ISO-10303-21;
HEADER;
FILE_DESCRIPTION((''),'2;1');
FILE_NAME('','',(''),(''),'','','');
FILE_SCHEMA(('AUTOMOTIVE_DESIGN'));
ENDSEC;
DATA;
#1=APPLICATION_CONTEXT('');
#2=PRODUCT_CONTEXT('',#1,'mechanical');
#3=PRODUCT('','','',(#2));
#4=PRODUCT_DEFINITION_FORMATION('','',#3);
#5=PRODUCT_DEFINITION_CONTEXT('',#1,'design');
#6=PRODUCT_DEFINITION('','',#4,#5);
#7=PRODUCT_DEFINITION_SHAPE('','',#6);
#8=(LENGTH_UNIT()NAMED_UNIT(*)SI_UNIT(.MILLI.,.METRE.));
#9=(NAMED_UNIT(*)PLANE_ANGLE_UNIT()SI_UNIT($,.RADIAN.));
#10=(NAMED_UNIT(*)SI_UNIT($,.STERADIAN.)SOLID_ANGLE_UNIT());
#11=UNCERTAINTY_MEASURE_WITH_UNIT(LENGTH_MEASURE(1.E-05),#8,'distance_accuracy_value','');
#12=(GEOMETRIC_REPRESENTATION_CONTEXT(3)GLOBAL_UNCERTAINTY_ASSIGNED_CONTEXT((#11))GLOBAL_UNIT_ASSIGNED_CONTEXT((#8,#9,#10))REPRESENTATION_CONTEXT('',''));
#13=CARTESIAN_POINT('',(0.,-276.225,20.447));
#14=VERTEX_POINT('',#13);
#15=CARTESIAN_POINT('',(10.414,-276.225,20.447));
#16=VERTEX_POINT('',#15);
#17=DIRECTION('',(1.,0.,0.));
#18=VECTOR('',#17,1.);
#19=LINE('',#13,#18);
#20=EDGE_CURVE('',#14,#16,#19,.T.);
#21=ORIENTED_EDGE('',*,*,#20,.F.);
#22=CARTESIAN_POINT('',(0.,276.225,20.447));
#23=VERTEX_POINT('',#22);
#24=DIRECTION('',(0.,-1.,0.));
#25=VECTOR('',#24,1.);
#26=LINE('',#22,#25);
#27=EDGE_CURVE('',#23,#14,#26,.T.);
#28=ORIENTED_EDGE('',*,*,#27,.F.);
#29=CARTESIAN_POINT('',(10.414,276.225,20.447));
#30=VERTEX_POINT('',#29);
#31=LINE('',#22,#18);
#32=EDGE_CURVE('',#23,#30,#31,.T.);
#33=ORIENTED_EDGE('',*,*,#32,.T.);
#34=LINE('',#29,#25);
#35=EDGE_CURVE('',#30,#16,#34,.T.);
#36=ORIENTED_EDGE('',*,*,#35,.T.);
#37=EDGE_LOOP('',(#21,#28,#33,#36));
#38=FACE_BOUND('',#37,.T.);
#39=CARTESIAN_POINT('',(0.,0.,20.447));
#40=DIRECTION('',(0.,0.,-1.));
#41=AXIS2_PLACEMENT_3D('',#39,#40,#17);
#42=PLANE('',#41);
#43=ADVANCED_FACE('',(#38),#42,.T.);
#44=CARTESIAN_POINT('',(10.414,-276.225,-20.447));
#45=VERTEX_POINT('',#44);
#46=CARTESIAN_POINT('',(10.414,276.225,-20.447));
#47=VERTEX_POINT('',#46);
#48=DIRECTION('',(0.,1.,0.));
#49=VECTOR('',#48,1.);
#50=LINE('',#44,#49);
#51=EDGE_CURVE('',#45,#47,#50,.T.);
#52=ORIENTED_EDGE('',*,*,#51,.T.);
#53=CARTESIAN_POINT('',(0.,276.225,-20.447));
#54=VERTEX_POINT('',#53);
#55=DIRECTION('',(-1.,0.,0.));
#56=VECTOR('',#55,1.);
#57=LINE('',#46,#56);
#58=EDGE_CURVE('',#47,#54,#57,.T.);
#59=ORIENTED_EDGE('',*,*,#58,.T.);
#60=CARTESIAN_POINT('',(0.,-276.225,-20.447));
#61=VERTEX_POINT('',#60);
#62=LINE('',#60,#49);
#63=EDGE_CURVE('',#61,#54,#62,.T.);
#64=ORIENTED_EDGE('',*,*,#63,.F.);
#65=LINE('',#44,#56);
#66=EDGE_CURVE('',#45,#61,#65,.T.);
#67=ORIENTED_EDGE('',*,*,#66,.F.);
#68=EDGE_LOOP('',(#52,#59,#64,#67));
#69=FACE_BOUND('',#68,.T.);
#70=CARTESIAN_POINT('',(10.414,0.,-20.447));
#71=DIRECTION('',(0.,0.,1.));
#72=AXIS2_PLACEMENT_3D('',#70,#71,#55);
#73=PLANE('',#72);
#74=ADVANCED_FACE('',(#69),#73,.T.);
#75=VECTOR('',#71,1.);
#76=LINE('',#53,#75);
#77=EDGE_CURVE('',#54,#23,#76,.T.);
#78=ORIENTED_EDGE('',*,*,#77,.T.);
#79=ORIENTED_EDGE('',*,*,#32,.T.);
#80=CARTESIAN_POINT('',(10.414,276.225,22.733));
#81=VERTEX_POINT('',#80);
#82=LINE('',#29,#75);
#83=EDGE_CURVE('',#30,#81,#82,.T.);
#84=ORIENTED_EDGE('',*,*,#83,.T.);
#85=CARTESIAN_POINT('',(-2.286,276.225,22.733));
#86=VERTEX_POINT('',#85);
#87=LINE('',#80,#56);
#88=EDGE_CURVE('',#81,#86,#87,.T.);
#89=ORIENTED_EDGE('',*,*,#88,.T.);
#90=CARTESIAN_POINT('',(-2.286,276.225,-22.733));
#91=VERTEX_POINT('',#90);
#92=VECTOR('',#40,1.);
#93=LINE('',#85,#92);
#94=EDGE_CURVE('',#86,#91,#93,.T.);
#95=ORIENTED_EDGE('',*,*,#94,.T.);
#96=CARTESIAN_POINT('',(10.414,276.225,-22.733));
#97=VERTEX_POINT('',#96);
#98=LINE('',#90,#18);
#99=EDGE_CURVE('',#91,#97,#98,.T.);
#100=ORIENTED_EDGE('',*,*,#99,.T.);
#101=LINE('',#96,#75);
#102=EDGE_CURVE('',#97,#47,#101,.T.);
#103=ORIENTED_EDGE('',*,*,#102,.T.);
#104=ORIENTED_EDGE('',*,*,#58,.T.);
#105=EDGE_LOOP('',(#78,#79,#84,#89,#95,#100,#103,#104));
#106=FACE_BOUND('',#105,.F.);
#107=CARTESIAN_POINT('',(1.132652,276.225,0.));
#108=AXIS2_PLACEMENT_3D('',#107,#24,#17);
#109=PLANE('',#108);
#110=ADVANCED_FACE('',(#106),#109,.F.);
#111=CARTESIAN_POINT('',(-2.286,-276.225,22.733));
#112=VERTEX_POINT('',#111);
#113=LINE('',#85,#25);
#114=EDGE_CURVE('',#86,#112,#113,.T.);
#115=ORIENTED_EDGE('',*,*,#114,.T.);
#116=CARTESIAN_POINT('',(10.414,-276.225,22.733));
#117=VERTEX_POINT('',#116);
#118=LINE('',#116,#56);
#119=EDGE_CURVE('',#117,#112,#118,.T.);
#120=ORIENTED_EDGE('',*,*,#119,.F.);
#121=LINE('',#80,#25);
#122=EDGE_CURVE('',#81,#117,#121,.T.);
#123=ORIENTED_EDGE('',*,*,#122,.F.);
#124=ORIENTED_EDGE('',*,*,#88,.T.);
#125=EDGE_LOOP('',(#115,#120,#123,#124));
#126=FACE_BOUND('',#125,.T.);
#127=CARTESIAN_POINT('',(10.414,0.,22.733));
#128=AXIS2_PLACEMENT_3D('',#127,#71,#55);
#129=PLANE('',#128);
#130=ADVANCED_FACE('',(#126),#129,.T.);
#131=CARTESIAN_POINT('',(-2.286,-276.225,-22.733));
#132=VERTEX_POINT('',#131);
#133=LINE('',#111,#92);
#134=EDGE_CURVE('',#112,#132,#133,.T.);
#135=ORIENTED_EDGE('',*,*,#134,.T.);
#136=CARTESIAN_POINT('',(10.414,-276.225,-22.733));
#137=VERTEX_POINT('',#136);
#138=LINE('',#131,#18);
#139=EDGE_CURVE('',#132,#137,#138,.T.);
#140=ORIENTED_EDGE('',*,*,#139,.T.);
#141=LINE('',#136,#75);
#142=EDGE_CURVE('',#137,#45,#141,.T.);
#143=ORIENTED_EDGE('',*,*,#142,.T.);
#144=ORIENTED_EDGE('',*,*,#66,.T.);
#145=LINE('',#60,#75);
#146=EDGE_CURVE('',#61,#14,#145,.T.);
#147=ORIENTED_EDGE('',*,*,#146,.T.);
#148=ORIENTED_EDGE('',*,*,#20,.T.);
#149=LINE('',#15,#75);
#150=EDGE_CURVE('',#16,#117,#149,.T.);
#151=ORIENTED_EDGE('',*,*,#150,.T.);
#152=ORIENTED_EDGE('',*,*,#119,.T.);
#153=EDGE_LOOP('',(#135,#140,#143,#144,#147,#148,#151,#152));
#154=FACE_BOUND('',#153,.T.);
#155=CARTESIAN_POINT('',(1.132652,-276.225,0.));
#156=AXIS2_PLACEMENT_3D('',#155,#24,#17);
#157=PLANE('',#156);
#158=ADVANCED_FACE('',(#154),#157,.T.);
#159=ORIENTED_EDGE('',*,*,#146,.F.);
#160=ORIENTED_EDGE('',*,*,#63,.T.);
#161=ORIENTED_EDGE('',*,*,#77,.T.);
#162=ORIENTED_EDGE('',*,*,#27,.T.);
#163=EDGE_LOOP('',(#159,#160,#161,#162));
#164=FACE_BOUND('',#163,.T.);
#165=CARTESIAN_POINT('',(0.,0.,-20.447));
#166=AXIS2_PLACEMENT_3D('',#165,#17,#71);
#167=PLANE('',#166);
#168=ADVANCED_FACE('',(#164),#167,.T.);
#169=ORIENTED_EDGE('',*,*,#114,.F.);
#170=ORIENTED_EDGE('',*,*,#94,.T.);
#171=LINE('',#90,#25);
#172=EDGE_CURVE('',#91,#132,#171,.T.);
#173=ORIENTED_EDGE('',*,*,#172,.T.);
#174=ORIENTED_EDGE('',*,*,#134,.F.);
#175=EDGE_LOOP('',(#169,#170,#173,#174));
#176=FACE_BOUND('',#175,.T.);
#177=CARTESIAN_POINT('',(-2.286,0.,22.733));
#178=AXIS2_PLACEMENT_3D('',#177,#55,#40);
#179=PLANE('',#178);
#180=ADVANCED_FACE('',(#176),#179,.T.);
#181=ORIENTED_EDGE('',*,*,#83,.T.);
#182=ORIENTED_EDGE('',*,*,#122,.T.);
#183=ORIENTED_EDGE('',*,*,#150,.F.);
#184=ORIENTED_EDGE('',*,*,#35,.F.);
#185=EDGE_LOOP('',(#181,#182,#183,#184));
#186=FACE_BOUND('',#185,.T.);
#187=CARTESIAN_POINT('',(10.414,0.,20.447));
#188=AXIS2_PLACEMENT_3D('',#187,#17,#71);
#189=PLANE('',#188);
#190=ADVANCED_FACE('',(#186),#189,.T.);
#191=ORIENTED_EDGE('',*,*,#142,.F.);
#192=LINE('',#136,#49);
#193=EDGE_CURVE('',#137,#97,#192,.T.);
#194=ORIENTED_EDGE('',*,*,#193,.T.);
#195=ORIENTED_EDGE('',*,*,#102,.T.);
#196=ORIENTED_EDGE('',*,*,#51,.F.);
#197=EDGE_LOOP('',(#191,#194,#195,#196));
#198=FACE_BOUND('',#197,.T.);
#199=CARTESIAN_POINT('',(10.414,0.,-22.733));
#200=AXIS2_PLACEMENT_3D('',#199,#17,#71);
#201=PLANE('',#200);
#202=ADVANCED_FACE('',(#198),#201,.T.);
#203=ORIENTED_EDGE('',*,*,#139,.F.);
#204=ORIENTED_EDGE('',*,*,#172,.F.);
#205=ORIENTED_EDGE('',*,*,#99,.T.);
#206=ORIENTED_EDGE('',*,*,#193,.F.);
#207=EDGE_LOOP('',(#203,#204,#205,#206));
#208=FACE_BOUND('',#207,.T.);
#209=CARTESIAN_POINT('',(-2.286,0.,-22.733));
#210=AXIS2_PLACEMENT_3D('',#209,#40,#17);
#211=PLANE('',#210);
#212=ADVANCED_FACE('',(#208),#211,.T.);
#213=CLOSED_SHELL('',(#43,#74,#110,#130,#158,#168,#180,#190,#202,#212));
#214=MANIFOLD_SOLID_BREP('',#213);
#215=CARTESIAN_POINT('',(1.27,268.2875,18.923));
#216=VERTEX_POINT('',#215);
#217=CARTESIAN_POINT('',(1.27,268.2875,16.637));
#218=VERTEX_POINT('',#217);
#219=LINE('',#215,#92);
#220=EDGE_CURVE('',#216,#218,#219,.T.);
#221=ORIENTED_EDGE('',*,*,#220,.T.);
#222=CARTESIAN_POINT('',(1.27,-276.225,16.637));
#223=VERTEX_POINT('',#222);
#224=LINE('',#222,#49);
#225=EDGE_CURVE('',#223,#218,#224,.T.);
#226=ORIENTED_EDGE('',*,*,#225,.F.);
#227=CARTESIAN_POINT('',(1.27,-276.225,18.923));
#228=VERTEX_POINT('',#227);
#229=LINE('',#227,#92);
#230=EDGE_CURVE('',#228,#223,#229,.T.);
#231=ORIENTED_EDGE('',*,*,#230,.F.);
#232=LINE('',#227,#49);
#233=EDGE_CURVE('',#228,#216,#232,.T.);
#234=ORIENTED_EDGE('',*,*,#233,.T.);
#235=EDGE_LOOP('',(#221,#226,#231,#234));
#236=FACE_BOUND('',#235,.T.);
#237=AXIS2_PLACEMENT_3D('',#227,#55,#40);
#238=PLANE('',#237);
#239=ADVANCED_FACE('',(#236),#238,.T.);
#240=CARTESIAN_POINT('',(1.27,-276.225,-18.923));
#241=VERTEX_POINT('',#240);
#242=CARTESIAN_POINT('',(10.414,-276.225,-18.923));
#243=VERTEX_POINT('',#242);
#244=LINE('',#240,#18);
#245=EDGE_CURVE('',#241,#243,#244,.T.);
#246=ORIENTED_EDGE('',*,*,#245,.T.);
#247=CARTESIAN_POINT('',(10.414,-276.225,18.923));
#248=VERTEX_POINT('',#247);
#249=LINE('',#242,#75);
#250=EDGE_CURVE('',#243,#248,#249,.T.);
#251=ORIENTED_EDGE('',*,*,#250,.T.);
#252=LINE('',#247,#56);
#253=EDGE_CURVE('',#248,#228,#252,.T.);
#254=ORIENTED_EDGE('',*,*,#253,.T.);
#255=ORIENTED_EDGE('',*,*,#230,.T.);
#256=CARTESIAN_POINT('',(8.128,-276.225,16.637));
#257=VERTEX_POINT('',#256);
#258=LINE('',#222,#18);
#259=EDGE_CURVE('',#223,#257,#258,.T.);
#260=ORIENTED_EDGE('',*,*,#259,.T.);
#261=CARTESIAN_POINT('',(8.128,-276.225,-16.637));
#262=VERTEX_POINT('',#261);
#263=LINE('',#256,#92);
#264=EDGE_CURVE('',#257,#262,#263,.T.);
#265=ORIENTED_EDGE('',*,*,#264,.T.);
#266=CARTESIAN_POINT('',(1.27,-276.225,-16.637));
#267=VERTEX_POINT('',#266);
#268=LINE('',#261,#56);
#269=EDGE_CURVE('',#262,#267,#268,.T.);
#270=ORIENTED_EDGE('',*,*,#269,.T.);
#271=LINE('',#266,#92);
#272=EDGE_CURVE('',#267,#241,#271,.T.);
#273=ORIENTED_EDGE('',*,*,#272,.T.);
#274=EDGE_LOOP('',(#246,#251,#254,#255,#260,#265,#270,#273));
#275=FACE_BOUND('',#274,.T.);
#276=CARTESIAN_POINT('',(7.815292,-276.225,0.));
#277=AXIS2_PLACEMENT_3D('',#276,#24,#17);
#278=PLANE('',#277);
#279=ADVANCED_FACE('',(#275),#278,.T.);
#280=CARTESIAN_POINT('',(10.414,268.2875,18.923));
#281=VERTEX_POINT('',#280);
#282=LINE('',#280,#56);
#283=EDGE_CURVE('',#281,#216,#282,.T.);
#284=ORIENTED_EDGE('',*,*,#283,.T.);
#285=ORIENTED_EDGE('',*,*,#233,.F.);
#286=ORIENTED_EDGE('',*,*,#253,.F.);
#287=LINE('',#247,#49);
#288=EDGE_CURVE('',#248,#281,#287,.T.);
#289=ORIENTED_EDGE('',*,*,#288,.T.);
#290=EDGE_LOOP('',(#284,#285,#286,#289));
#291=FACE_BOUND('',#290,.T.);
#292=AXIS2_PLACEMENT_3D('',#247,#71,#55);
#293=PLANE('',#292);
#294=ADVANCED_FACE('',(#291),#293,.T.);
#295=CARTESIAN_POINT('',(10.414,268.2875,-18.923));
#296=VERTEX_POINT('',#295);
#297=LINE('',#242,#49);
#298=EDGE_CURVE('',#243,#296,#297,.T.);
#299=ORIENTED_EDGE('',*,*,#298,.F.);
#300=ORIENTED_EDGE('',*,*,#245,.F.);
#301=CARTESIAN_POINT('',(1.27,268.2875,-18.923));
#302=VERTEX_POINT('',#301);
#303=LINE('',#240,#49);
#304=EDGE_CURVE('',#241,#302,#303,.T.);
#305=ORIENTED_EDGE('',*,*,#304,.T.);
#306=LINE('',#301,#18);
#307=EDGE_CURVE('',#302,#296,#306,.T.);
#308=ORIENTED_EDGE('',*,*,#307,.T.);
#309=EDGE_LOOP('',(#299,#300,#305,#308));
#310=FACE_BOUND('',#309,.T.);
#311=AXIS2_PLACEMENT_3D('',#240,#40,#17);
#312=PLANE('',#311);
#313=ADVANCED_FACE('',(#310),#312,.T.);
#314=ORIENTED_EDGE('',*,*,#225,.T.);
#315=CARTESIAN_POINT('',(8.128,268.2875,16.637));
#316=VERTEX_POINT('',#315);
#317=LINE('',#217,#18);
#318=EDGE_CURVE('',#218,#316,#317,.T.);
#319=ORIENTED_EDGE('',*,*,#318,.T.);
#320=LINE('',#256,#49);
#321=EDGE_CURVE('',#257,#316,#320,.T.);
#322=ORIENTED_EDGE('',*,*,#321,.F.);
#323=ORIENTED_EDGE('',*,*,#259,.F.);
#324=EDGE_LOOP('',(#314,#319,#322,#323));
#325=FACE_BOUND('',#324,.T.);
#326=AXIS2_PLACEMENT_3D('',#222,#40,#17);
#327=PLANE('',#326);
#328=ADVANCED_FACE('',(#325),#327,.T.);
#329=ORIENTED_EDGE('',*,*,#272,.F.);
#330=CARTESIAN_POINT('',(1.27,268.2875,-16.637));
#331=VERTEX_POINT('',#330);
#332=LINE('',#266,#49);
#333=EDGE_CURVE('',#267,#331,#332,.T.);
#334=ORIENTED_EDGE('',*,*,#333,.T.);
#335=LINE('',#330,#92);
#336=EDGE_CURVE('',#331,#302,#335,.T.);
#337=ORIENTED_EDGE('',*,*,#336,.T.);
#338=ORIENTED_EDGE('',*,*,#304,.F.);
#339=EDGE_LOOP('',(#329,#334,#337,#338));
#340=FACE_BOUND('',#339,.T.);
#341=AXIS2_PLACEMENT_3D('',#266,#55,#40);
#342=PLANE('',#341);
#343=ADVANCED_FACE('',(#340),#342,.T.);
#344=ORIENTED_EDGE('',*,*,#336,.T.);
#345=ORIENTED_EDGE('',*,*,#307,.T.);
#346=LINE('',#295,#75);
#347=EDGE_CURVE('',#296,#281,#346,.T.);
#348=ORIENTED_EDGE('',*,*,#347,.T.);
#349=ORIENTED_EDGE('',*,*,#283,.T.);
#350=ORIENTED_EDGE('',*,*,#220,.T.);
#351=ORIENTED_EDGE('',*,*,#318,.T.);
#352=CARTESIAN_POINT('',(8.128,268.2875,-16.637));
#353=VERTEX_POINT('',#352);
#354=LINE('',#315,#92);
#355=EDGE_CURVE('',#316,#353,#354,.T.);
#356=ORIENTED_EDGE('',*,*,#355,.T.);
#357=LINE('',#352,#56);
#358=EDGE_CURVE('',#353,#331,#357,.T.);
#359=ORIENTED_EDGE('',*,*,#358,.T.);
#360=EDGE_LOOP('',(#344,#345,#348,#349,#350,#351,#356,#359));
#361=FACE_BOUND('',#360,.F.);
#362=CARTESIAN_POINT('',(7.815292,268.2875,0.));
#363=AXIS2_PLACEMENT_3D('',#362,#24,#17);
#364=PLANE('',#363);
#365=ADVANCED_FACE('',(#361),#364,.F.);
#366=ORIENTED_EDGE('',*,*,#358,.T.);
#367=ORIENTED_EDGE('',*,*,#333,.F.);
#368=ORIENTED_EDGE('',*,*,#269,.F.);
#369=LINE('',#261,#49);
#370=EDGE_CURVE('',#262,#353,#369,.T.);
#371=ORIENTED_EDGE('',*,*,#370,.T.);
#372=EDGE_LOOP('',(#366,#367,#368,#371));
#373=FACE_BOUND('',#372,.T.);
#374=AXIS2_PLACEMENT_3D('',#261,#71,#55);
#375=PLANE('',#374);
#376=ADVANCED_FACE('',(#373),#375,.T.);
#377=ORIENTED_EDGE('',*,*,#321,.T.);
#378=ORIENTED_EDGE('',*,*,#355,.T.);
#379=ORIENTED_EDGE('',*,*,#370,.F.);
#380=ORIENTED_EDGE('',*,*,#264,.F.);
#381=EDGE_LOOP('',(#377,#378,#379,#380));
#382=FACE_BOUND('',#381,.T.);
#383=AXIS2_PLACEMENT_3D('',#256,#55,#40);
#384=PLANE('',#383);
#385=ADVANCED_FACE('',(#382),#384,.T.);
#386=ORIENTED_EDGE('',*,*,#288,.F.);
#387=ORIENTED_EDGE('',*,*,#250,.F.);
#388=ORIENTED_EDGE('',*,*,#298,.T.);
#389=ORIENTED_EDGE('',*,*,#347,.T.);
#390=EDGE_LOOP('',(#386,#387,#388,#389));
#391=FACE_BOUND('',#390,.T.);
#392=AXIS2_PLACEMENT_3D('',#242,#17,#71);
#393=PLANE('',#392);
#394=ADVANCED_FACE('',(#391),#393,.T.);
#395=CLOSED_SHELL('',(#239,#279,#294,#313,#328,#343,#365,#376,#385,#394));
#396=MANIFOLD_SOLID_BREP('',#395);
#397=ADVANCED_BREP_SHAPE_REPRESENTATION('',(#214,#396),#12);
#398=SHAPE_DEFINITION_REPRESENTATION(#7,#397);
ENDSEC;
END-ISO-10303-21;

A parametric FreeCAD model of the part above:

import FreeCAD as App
import Part
import Sketcher
Q = App.Units.Quantity


def add_polygon(sketch, points):
    """Adds a closed chain of lines whose ends are joined by coincident constraints."""
    first, n = sketch.GeometryCount, len(points)
    for a, b in zip(points, points[1:] + points[:1]):
        sketch.addGeometry(Part.LineSegment(App.Vector(*a, 0), App.Vector(*b, 0)), False)
    for i in range(n):
        sketch.addConstraint(Sketcher.Constraint("Coincident", first + i, 2, first + (i + 1) % n, 1))

doc = App.newDocument("Part")
params = doc.addObject("Spreadsheet::Sheet", "Params")
for row, (alias, value) in enumerate([
    ("sketch1_width", "0.5 in"),
    ("sketch1_width2", "0.41 in"),
    ("sketch1_height", "1.61 in"),
    ("sketch1_height2", "0.09 in"),
    ("pad1_length", "21.75 in"),
    ("sketch2_width", "0.36 in"),
    ("sketch2_width2", "0.27 in"),
    ("sketch2_height", "0.09 in"),
    ("sketch2_height2", "1.31 in"),
    ("pad2_length", "21.4375 in"),
], start=1):
    params.set(f"A{row}", alias)
    params.set(f"B{row}", "=" + value)
    params.setAlias(f"B{row}", alias)

body = doc.addObject("PartDesign::Body", "Body")

sketch1 = body.newObject("Sketcher::SketchObject", "Sketch")
sketch1.AttachmentSupport = (doc.getObject("XZ_Plane"), [""])
sketch1.MapMode = "FlatFace"
add_polygon(sketch1, [(0, -20.4), (0, 20.4), (10.4, 20.4), (10.4, 22.7), (-2.3, 22.7), (-2.3, -22.7), (10.4, -22.7), (10.4, -20.4)])
sketch1.addConstraint([
    Sketcher.Constraint("Vertical", 0),
    Sketcher.Constraint("Horizontal", 1),
    Sketcher.Constraint("Vertical", 2),
    Sketcher.Constraint("Horizontal", 3),
    Sketcher.Constraint("Vertical", 4),
    Sketcher.Constraint("Horizontal", 5),
    Sketcher.Constraint("Vertical", 6),
    Sketcher.Constraint("Horizontal", 7),
    Sketcher.Constraint("Symmetric", 0, 2, 7, 2, -1, 1),
    Sketcher.Constraint("Symmetric", 2, 2, 5, 2, -1),
    Sketcher.Constraint("DistanceX", 3, 2, 3, 1, Q("0.5 in")),
    Sketcher.Constraint("DistanceX", 1, 1, 1, 2, Q("0.41 in")),
    Sketcher.Constraint("DistanceY", 0, 1, 0, 2, Q("1.61 in")),
    Sketcher.Constraint("DistanceY", 2, 1, 2, 2, Q("0.09 in")),
])
sketch1.setExpression("Constraints[18]", "Params.sketch1_width")
sketch1.setExpression("Constraints[19]", "Params.sketch1_width2")
sketch1.setExpression("Constraints[20]", "Params.sketch1_height")
sketch1.setExpression("Constraints[21]", "Params.sketch1_height2")
pad1 = body.newObject("PartDesign::Pad", "Pad")
pad1.Profile = sketch1
pad1.setExpression("Length", "Params.pad1_length")
pad1.Midplane = True
body2 = doc.addObject("PartDesign::Body", "Body001")

sketch2 = body2.newObject("Sketcher::SketchObject", "Sketch001")
sketch2.AttachmentSupport = (doc.getObject("XZ_Plane001"), [""])
sketch2.MapMode = "FlatFace"
sketch2.AttachmentOffset = App.Placement(App.Vector(0, 0, 10.875 * 25.4), App.Rotation())
add_polygon(sketch2, [(10.4, 18.9), (1.3, 18.9), (1.3, 16.6), (8.1, 16.6), (8.1, -16.6), (1.3, -16.6), (1.3, -18.9), (10.4, -18.9)])
sketch2.addConstraint([
    Sketcher.Constraint("Horizontal", 0),
    Sketcher.Constraint("Vertical", 1),
    Sketcher.Constraint("Horizontal", 2),
    Sketcher.Constraint("Vertical", 3),
    Sketcher.Constraint("Horizontal", 4),
    Sketcher.Constraint("Vertical", 5),
    Sketcher.Constraint("Horizontal", 6),
    Sketcher.Constraint("Vertical", 7),
    Sketcher.Constraint("Symmetric", 1, 2, 4, 2, -1),
    Sketcher.Constraint("Equal", 1, 5),
    Sketcher.Constraint("DistanceX", 0, 2, 0, 1, Q("0.36 in")),
    Sketcher.Constraint("DistanceX", 2, 1, 2, 2, Q("0.27 in")),
    Sketcher.Constraint("DistanceY", 1, 2, 1, 1, Q("0.09 in")),
    Sketcher.Constraint("DistanceY", 3, 2, 3, 1, Q("1.31 in")),
    Sketcher.Constraint("DistanceX", -1, 1, 0, 2, Q("0.05 in")),
])
sketch2.setExpression("Constraints[18]", "Params.sketch2_width")
sketch2.setExpression("Constraints[19]", "Params.sketch2_width2")
sketch2.setExpression("Constraints[20]", "Params.sketch2_height")
sketch2.setExpression("Constraints[21]", "Params.sketch2_height2")
pad2 = body2.newObject("PartDesign::Pad", "Pad001")
pad2.Profile = sketch2
pad2.setExpression("Length", "Params.pad2_length")
pad2.Reversed = True

doc.recompute()
